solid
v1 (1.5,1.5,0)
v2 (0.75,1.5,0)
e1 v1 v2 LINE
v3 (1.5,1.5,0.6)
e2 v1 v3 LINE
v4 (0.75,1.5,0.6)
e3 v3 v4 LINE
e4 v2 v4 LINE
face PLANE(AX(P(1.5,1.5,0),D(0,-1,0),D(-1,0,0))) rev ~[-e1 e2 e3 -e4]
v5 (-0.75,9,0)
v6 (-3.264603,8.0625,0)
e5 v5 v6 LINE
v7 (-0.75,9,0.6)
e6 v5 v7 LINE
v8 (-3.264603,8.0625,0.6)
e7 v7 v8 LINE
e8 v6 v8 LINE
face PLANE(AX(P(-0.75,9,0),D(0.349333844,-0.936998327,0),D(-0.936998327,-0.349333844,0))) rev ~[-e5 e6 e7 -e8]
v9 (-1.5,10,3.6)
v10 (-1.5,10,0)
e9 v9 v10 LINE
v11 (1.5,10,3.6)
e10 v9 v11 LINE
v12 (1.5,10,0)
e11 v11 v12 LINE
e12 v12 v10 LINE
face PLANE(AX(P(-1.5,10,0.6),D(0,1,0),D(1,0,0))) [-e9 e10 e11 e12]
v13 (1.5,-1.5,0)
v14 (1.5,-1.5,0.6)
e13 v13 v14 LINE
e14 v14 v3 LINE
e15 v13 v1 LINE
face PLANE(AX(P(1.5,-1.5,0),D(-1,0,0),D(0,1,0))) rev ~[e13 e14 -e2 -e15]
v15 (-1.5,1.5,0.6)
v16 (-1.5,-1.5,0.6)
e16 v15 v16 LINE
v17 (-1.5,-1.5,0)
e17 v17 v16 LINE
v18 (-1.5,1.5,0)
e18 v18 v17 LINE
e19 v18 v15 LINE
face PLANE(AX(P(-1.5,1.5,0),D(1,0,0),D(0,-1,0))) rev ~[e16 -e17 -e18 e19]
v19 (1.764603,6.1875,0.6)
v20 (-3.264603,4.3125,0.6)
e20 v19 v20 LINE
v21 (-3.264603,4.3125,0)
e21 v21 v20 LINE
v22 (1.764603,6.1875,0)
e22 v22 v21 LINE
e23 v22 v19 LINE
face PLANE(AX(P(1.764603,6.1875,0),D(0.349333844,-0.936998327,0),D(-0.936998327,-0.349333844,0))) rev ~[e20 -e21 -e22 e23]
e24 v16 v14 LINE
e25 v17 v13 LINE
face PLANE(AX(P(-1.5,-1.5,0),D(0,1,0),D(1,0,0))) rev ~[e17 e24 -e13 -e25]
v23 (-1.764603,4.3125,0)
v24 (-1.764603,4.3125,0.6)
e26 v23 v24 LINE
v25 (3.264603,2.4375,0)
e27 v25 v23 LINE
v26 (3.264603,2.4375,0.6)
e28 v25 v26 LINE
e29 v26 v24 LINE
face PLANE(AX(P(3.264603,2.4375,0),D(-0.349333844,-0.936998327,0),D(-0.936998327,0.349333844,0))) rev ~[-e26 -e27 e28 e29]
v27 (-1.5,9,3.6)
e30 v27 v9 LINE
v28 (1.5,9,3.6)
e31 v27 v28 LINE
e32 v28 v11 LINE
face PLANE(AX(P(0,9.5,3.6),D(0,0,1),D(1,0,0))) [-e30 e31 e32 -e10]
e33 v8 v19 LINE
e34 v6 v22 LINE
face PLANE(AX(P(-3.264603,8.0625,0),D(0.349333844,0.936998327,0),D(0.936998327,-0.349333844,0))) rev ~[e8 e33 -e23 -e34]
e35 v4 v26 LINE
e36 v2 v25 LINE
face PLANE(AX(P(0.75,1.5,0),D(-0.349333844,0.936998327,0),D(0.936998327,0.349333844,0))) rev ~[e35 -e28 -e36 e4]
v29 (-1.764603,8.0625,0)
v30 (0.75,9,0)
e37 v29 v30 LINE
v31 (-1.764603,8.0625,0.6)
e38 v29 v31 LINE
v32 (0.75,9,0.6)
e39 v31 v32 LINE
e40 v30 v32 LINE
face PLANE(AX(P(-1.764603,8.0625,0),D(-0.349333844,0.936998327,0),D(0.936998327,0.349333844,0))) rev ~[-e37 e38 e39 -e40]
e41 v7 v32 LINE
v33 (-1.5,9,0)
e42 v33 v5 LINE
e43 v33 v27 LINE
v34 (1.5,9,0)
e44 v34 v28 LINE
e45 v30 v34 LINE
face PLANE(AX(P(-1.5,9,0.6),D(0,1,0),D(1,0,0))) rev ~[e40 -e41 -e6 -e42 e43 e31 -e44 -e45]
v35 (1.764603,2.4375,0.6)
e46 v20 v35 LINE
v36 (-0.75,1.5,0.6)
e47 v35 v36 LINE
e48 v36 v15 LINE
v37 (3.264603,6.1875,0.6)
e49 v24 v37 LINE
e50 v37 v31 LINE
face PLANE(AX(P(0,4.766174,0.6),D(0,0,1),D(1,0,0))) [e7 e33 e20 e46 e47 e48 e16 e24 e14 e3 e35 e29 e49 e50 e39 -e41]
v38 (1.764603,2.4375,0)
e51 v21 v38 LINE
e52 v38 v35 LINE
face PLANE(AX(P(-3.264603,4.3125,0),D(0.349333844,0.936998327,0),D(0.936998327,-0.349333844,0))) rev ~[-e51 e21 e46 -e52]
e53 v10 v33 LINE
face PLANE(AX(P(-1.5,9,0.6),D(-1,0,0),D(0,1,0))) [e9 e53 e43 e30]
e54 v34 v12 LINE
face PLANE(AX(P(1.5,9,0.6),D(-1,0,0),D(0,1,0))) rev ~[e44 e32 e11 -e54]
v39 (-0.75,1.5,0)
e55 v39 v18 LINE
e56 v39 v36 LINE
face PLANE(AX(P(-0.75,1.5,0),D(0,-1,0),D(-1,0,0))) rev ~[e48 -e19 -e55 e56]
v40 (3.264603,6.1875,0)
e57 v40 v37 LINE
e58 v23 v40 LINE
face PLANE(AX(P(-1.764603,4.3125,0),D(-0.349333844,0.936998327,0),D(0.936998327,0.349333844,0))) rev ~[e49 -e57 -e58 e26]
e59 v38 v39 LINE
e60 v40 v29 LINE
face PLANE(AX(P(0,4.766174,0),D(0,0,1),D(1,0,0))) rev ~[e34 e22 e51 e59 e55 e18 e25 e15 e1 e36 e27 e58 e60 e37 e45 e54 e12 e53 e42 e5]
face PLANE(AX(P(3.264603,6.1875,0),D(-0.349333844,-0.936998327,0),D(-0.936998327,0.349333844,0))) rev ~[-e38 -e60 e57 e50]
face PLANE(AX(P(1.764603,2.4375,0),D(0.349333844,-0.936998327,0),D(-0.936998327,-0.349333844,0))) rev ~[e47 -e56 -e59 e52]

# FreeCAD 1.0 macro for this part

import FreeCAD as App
import Part
import Sketcher


def add_polygon(sketch, points):
    """Adds a closed chain of lines whose ends are joined by coincident constraints."""
    first, n = sketch.GeometryCount, len(points)
    for a, b in zip(points, points[1:] + points[:1]):
        sketch.addGeometry(Part.LineSegment(App.Vector(*a, 0), App.Vector(*b, 0)), False)
    for i in range(n):
        sketch.addConstraint(Sketcher.Constraint("Coincident", first + i, 2, first + (i + 1) % n, 1))

doc = App.newDocument("Part")
body = doc.addObject("PartDesign::Body", "Body")

# Sketch on XY plane
sketch1 = body.newObject("Sketcher::SketchObject", "Sketch")
sketch1.AttachmentSupport = (doc.getObject("XY_Plane"), [""])
sketch1.MapMode = "FlatFace"
add_polygon(sketch1, [(-0.8, 1.5), (-1.5, 1.5), (-1.5, -1.5), (1.5, -1.5), (1.5, 1.5), (0.8, 1.5), (3.3, 2.4), (-1.8, 4.3), (3.3, 6.2), (-1.8, 8.1), (0.8, 9), (1.5, 9), (1.5, 10), (-1.5, 10), (-1.5, 9), (-0.8, 9), (-3.3, 8.1), (1.8, 6.2), (-3.3, 4.3), (1.8, 2.4)])  # lines 0-19
sketch1.addConstraint([
    Sketcher.Constraint("Horizontal", 0),
    Sketcher.Constraint("Vertical", 1),
    Sketcher.Constraint("Horizontal", 2),
    Sketcher.Constraint("Vertical", 3),
    Sketcher.Constraint("Horizontal", 4),
    Sketcher.Constraint("Horizontal", 10),
    Sketcher.Constraint("Vertical", 11),
    Sketcher.Constraint("Horizontal", 12),
    Sketcher.Constraint("Vertical", 13),
    Sketcher.Constraint("Horizontal", 14),
    Sketcher.Constraint("Symmetric", 0, 2, 2, 2, -1, 1),
    Sketcher.Constraint("Symmetric", 10, 2, 13, 2, -2),
    Sketcher.Constraint("Symmetric", 4, 2, 19, 2, -2),
    Sketcher.Constraint("Parallel", 5, 7),
    Sketcher.Constraint("Parallel", 6, 8),
    Sketcher.Constraint("Parallel", 7, 9),
    Sketcher.Constraint("Parallel", 9, 15),
    Sketcher.Constraint("Parallel", 8, 16),
    Sketcher.Constraint("Parallel", 15, 17),
    Sketcher.Constraint("Parallel", 16, 18),
    Sketcher.Constraint("Parallel", 17, 19),
    Sketcher.Constraint("Horizontal", 8, 2, 15, 2),
    Sketcher.Constraint("Horizontal", 7, 2, 16, 2),
    Sketcher.Constraint("Horizontal", 6, 2, 17, 2),
    Sketcher.Constraint("Horizontal", 5, 2, 18, 2),
    Sketcher.Constraint("Vertical", 5, 2, 7, 2),
    Sketcher.Constraint("Vertical", 6, 2, 8, 2),
    Sketcher.Constraint("Vertical", 4, 2, 9, 2),
    Sketcher.Constraint("Vertical", 3, 2, 10, 2),
    Sketcher.Constraint("Equal", 12, 1),
    Sketcher.Constraint("Equal", 6, 7),
    Sketcher.Constraint("Equal", 5, 9),
    Sketcher.Constraint("DistanceX", 2, 1, 2, 2, 3.0),
    Sketcher.Constraint("DistanceY", 11, 1, 11, 2, 1.0),
    Sketcher.Constraint("DistanceY", -1, 1, 9, 2, 9.0),
    Sketcher.Constraint("DistanceX", 0, 2, 0, 1, 0.75),
    Sketcher.Constraint("Distance", 5, 2.683679),
])
pad1 = body.newObject("PartDesign::Pad", "Pad")
pad1.Profile = sketch1
pad1.Length = 0.6

# Sketch on XY plane
sketch2 = body.newObject("Sketcher::SketchObject", "Sketch001")
sketch2.AttachmentSupport = (doc.getObject("XY_Plane"), [""])
sketch2.MapMode = "FlatFace"
sketch2.AttachmentOffset = App.Placement(App.Vector(0, 0, 0.6), App.Rotation())
add_polygon(sketch2, [(-1.5, 10), (-1.5, 9), (1.5, 9), (1.5, 10)])  # lines 0-3
sketch2.addConstraint([
    Sketcher.Constraint("Vertical", 0),
    Sketcher.Constraint("Horizontal", 1),
    Sketcher.Constraint("Vertical", 2),
    Sketcher.Constraint("Horizontal", 3),
    Sketcher.Constraint("DistanceX", 1, 1, 1, 2, 3.0),
    Sketcher.Constraint("DistanceY", 0, 2, 0, 1, 1.0),
    Sketcher.Constraint("DistanceY", -1, 1, 0, 2, 9.0),
    Sketcher.Constraint("DistanceX", 0, 2, -1, 1, 1.5),
])
pad2 = body.newObject("PartDesign::Pad", "Pad001")
pad2.Profile = sketch2
pad2.Length = 3

doc.recompute()
